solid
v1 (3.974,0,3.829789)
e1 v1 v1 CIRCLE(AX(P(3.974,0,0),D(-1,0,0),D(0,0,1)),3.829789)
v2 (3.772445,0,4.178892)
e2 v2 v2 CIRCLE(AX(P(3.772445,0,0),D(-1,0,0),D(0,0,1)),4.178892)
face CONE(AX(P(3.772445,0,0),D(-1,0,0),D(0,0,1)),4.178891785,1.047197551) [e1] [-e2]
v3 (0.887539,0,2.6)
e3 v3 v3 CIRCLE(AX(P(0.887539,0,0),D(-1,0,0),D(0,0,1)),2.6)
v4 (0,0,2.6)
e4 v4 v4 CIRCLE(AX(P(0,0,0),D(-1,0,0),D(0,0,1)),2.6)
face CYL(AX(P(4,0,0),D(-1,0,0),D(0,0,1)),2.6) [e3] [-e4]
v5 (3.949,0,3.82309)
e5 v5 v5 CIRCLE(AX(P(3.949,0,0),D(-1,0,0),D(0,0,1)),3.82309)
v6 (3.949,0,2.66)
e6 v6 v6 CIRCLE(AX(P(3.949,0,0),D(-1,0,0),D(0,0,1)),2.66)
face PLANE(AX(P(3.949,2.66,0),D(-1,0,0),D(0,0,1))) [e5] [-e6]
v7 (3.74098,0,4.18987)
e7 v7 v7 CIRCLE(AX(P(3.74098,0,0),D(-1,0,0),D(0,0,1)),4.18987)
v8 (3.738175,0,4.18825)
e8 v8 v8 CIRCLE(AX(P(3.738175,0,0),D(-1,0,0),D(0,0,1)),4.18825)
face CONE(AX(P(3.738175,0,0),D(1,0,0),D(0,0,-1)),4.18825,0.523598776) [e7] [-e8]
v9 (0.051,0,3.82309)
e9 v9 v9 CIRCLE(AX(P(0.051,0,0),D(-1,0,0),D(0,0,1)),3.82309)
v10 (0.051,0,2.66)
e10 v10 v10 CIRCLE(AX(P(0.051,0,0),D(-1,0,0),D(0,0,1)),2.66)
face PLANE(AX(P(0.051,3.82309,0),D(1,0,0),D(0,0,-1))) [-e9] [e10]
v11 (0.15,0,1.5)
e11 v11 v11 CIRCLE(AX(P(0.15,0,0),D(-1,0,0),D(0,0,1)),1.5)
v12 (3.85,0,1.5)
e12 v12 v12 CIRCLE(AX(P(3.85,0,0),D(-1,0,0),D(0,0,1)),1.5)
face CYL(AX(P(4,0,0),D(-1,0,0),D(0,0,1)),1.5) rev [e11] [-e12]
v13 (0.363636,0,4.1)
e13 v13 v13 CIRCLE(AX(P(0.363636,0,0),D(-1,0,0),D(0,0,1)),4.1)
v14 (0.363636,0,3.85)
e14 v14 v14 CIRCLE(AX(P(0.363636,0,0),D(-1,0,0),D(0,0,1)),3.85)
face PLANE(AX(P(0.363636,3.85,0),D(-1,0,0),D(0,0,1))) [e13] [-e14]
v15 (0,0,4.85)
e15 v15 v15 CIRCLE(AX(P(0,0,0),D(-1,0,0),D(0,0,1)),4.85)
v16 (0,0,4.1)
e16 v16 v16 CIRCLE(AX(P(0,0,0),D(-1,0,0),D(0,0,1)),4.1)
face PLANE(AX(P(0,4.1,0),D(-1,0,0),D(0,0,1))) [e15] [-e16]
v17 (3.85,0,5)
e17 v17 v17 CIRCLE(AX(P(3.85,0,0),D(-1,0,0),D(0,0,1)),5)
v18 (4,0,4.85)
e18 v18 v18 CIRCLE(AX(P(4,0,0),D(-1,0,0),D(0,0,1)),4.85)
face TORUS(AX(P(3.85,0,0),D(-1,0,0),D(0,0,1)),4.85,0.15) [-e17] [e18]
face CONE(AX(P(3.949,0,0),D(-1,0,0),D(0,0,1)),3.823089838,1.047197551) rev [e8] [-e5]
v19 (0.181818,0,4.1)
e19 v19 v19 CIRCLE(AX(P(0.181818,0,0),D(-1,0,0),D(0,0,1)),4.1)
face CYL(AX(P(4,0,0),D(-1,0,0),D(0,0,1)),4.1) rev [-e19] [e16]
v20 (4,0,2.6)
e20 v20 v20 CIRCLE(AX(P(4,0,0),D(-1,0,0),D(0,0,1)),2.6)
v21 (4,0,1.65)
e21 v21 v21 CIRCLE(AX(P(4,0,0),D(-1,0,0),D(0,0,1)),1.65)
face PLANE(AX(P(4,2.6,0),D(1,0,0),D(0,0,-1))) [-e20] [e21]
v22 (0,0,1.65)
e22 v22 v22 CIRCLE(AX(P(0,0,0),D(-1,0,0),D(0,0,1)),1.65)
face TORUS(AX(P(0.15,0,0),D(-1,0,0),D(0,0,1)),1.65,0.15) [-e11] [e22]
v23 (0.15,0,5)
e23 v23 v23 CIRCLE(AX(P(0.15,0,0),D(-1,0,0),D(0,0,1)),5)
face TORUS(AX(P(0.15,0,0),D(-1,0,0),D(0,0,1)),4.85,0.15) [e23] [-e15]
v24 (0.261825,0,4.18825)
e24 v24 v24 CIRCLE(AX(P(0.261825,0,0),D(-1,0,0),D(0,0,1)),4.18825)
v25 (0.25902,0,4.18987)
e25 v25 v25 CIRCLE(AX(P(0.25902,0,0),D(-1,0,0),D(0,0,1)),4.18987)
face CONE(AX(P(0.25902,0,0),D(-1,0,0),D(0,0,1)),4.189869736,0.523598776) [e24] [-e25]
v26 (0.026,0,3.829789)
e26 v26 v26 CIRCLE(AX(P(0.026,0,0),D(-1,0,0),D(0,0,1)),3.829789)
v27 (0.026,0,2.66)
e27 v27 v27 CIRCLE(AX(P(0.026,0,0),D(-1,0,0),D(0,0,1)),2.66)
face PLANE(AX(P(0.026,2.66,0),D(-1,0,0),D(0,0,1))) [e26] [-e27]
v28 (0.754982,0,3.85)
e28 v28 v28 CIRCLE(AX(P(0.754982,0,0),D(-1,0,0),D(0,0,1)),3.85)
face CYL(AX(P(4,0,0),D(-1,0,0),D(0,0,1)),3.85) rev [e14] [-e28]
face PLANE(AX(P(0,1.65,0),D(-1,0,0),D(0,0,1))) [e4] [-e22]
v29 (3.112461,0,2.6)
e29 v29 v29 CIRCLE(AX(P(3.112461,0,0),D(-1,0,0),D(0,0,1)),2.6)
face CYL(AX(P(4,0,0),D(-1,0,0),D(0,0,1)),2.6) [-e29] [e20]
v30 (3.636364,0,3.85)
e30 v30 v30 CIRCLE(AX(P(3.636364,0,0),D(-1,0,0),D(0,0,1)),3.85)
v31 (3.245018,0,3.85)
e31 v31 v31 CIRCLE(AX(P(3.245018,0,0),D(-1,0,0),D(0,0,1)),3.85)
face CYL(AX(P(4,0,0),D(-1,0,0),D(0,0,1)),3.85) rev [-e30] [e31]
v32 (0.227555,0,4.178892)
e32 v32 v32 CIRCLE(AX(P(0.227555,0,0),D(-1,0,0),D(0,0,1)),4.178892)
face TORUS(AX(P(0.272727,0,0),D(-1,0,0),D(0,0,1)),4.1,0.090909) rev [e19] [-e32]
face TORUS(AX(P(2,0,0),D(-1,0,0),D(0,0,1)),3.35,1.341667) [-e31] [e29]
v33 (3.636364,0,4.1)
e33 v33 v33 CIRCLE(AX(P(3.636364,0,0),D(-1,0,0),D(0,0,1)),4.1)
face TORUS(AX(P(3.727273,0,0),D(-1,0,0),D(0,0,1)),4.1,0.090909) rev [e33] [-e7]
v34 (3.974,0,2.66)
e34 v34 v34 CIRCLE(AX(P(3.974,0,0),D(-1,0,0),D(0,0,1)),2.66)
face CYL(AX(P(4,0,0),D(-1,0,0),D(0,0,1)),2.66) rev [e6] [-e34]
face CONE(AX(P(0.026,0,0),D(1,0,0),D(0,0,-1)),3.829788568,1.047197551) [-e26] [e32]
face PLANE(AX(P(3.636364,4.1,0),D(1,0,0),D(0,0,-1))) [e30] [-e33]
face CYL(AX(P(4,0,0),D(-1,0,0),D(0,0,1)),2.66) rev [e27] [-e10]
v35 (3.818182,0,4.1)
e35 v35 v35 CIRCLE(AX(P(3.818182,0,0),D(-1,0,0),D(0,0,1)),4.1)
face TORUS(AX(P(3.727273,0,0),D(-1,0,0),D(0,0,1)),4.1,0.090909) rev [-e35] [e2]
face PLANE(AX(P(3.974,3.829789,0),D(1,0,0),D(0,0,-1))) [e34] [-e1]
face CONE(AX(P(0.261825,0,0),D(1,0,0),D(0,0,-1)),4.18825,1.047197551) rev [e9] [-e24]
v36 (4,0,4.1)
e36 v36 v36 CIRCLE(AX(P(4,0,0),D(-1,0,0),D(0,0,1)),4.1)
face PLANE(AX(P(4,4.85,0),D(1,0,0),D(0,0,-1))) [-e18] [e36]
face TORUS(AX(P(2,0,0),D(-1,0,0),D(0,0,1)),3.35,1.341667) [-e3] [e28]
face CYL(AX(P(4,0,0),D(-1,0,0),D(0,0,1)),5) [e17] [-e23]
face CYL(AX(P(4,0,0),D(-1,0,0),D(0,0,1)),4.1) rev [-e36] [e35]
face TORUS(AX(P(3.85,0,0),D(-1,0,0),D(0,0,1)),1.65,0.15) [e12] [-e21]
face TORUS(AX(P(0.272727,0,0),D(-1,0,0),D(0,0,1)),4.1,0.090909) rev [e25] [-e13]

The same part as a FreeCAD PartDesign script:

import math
import FreeCAD as App
import Part
import Sketcher

V = App.Vector
Q = App.Units.Quantity

doc = App.newDocument("Part")
body = doc.addObject("PartDesign::Body", "Body")

# Sketch on XY plane
sketch1 = body.newObject("Sketcher::SketchObject", "Sketch")
sketch1.AttachmentSupport = (doc.getObject("XY_Plane"), [""])
sketch1.MapMode = "FlatFace"
sketch1.addGeometry([
    Part.LineSegment(V(4, 2.6, 0), V(4, 1.65, 0)),  # 0
    Part.ArcOfCircle(Part.Circle(V(3.85, 1.65, 0), V(0, 0, 1), 0.15), math.radians(-90), math.radians(0)),  # 1
    Part.LineSegment(V(3.85, 1.5, 0), V(0.15, 1.5, 0)),  # 2
    Part.ArcOfCircle(Part.Circle(V(0.15, 1.65, 0), V(0, 0, 1), 0.15), math.radians(-180), math.radians(-90)),  # 3
    Part.LineSegment(V(0, 1.65, 0), V(0, 2.6, 0)),  # 4
    Part.LineSegment(V(0, 2.6, 0), V(0.8875, 2.6, 0)),  # 5
    Part.ArcOfCircle(Part.Circle(V(2, 3.35, 0), V(0, 0, 1), 1.3417), math.radians(158), math.radians(214)),  # 6
    Part.LineSegment(V(0.755, 3.85, 0), V(0.3636, 3.85, 0)),  # 7
    Part.LineSegment(V(0.3636, 3.85, 0), V(0.3636, 4.1, 0)),  # 8
    Part.ArcOfCircle(Part.Circle(V(0.2727, 4.1, 0), V(0, 0, 1), 0.0909), math.radians(0), math.radians(99)),  # 9
    Part.LineSegment(V(0.259, 4.1899, 0), V(0.2618, 4.1883, 0)),  # 10
    Part.LineSegment(V(0.2618, 4.1883, 0), V(0.051, 3.8231, 0)),  # 11
    Part.LineSegment(V(0.051, 3.8231, 0), V(0.051, 2.66, 0)),  # 12
    Part.LineSegment(V(0.051, 2.66, 0), V(0.026, 2.66, 0)),  # 13
    Part.LineSegment(V(0.026, 2.66, 0), V(0.026, 3.8298, 0)),  # 14
    Part.LineSegment(V(0.026, 3.8298, 0), V(0.2276, 4.1789, 0)),  # 15
    Part.ArcOfCircle(Part.Circle(V(0.2727, 4.1, 0), V(0, 0, 1), 0.0909), math.radians(120), math.radians(180)),  # 16
    Part.LineSegment(V(0.1818, 4.1, 0), V(0, 4.1, 0)),  # 17
    Part.LineSegment(V(0, 4.1, 0), V(0, 4.85, 0)),  # 18
    Part.ArcOfCircle(Part.Circle(V(0.15, 4.85, 0), V(0, 0, 1), 0.15), math.radians(90), math.radians(180)),  # 19
    Part.LineSegment(V(0.15, 5, 0), V(3.85, 5, 0)),  # 20
    Part.ArcOfCircle(Part.Circle(V(3.85, 4.85, 0), V(0, 0, 1), 0.15), math.radians(0), math.radians(90)),  # 21
    Part.LineSegment(V(4, 4.85, 0), V(4, 4.1, 0)),  # 22
    Part.LineSegment(V(4, 4.1, 0), V(3.8182, 4.1, 0)),  # 23
    Part.ArcOfCircle(Part.Circle(V(3.7273, 4.1, 0), V(0, 0, 1), 0.0909), math.radians(0), math.radians(60)),  # 24
    Part.LineSegment(V(3.7724, 4.1789, 0), V(3.974, 3.8298, 0)),  # 25
    Part.LineSegment(V(3.974, 3.8298, 0), V(3.974, 2.66, 0)),  # 26
    Part.LineSegment(V(3.974, 2.66, 0), V(3.949, 2.66, 0)),  # 27
    Part.LineSegment(V(3.949, 2.66, 0), V(3.949, 3.8231, 0)),  # 28
    Part.LineSegment(V(3.949, 3.8231, 0), V(3.7382, 4.1883, 0)),  # 29
    Part.LineSegment(V(3.7382, 4.1883, 0), V(3.741, 4.1899, 0)),  # 30
    Part.ArcOfCircle(Part.Circle(V(3.7273, 4.1, 0), V(0, 0, 1), 0.0909), math.radians(81), math.radians(180)),  # 31
    Part.LineSegment(V(3.6364, 4.1, 0), V(3.6364, 3.85, 0)),  # 32
    Part.LineSegment(V(3.6364, 3.85, 0), V(3.245, 3.85, 0)),  # 33
    Part.ArcOfCircle(Part.Circle(V(2, 3.35, 0), V(0, 0, 1), 1.3417), math.radians(-34), math.radians(22)),  # 34
    Part.LineSegment(V(3.1125, 2.6, 0), V(4, 2.6, 0)),  # 35
], False)
sketch1.addConstraint([
    Sketcher.Constraint("Tangent", 0, 2, 1, 2),
    Sketcher.Constraint("Tangent", 1, 1, 2, 1),
    Sketcher.Constraint("Tangent", 2, 2, 3, 2),
    Sketcher.Constraint("Tangent", 3, 1, 4, 1),
    Sketcher.Constraint("Coincident", 4, 2, 5, 1),
    Sketcher.Constraint("Coincident", 5, 2, 6, 2),
    Sketcher.Constraint("Coincident", 6, 1, 7, 1),
    Sketcher.Constraint("Coincident", 7, 2, 8, 1),
    Sketcher.Constraint("Tangent", 8, 2, 9, 1),
    Sketcher.Constraint("Coincident", 9, 2, 10, 1),
    Sketcher.Constraint("Coincident", 10, 2, 11, 1),
    Sketcher.Constraint("Coincident", 11, 2, 12, 1),
    Sketcher.Constraint("Coincident", 12, 2, 13, 1),
    Sketcher.Constraint("Coincident", 13, 2, 14, 1),
    Sketcher.Constraint("Coincident", 14, 2, 15, 1),
    Sketcher.Constraint("Coincident", 15, 2, 16, 1),
    Sketcher.Constraint("Coincident", 16, 2, 17, 1),
    Sketcher.Constraint("Coincident", 17, 2, 18, 1),
    Sketcher.Constraint("Tangent", 18, 2, 19, 2),
    Sketcher.Constraint("Tangent", 19, 1, 20, 1),
    Sketcher.Constraint("Tangent", 20, 2, 21, 2),
    Sketcher.Constraint("Tangent", 21, 1, 22, 1),
    Sketcher.Constraint("Coincident", 22, 2, 23, 1),
    Sketcher.Constraint("Coincident", 23, 2, 24, 1),
    Sketcher.Constraint("Coincident", 24, 2, 25, 1),
    Sketcher.Constraint("Coincident", 25, 2, 26, 1),
    Sketcher.Constraint("Coincident", 26, 2, 27, 1),
    Sketcher.Constraint("Coincident", 27, 2, 28, 1),
    Sketcher.Constraint("Coincident", 28, 2, 29, 1),
    Sketcher.Constraint("Coincident", 29, 2, 30, 1),
    Sketcher.Constraint("Coincident", 30, 2, 31, 1),
    Sketcher.Constraint("Tangent", 31, 2, 32, 1),
    Sketcher.Constraint("Coincident", 32, 2, 33, 1),
    Sketcher.Constraint("Coincident", 33, 2, 34, 2),
    Sketcher.Constraint("Coincident", 34, 1, 35, 1),
    Sketcher.Constraint("Coincident", 35, 2, 0, 1),
    Sketcher.Constraint("Vertical", 0),
    Sketcher.Constraint("Horizontal", 2),
    Sketcher.Constraint("Vertical", 4),
    Sketcher.Constraint("Horizontal", 5),
    Sketcher.Constraint("Horizontal", 7),
    Sketcher.Constraint("Vertical", 8),
    Sketcher.Constraint("Vertical", 12),
    Sketcher.Constraint("Horizontal", 13),
    Sketcher.Constraint("Vertical", 14),
    Sketcher.Constraint("Horizontal", 17),
    Sketcher.Constraint("Vertical", 18),
    Sketcher.Constraint("Horizontal", 20),
    Sketcher.Constraint("Vertical", 22),
    Sketcher.Constraint("Horizontal", 23),
    Sketcher.Constraint("Vertical", 26),
    Sketcher.Constraint("Horizontal", 27),
    Sketcher.Constraint("Vertical", 28),
    Sketcher.Constraint("Vertical", 32),
    Sketcher.Constraint("Horizontal", 33),
    Sketcher.Constraint("Horizontal", 35),
    Sketcher.Constraint("Coincident", 16, 3, 9, 3),
    Sketcher.Constraint("Coincident", 31, 3, 24, 3),
    Sketcher.Constraint("Coincident", 34, 3, 6, 3),
    Sketcher.Constraint("Equal", 1, 3),
    Sketcher.Constraint("Equal", 9, 16),
    Sketcher.Constraint("Equal", 3, 19),
    Sketcher.Constraint("Equal", 19, 21),
    Sketcher.Constraint("Equal", 16, 24),
    Sketcher.Constraint("Equal", 24, 31),
    Sketcher.Constraint("Equal", 6, 34),
    Sketcher.Constraint("PointOnObject", 3, 1, -2),
    Sketcher.Constraint("PointOnObject", 17, 2, -2),
    Sketcher.Constraint("Perpendicular", 10, 11),
    Sketcher.Constraint("Parallel", 11, 15),
    Sketcher.Constraint("Parallel", 25, 29),
    Sketcher.Constraint("Perpendicular", 29, 30),
    Sketcher.Constraint("Horizontal", 16, 3, 24, 3),
    Sketcher.Constraint("Horizontal", 8, 2, 16, 2),
    Sketcher.Constraint("Horizontal", 17, 2, 22, 2),
    Sketcher.Constraint("Horizontal", 15, 2, 24, 2),
    Sketcher.Constraint("Horizontal", 14, 2, 25, 2),
    Sketcher.Constraint("Horizontal", 13, 2, 26, 2),
    Sketcher.Constraint("Horizontal", 11, 2, 28, 2),
    Sketcher.Constraint("Horizontal", 10, 2, 29, 2),
    Sketcher.Constraint("Horizontal", 9, 2, 30, 2),
    Sketcher.Constraint("Horizontal", 7, 2, 32, 2),
    Sketcher.Constraint("Horizontal", 5, 2, 34, 1),
    Sketcher.Constraint("Vertical", 1, 3, 21, 3),
    Sketcher.Constraint("Equal", 17, 23),
    Sketcher.Constraint("Equal", 13, 27),
    Sketcher.Constraint("Equal", 7, 33),
    Sketcher.Constraint("Angle", 10, Q("-30 deg")),
    Sketcher.Constraint("Radius", 1, Q("0.15 mm")),
    Sketcher.Constraint("DistanceX", 2, 2, 2, 1, Q("3.7 mm")),
    Sketcher.Constraint("DistanceY", -1, 1, 19, 1, Q("5 mm")),
    Sketcher.Constraint("DistanceY", 6, 1, 19, 3, Q("1 mm")),
    Sketcher.Constraint("DistanceY", 0, 2, 0, 1, Q("0.95 mm")),
    Sketcher.Constraint("DistanceY", 8, 1, 8, 2, Q("0.25 mm")),
    Sketcher.Constraint("DistanceY", -1, 1, 1, 1, Q("1.5 mm")),
    Sketcher.Constraint("DistanceY", 1, 3, 6, 3, Q("1.7 mm")),
    Sketcher.Constraint("DistanceX", 13, 2, 13, 1, Q("0.025 mm")),
    Sketcher.Constraint("DistanceY", -1, 1, 12, 2, Q("2.66 mm")),
    Sketcher.Constraint("Radius", 9, Q("0.090909 mm")),
    Sketcher.Constraint("DistanceX", -1, 1, 11, 2, Q("0.051 mm")),
    Sketcher.Constraint("Radius", 6, Q("1.341667 mm")),
    Sketcher.Constraint("DistanceX", 17, 2, 17, 1, Q("0.181818 mm")),
    Sketcher.Constraint("DistanceY", 12, 2, 12, 1, Q("1.16309 mm")),
    Sketcher.Constraint("DistanceY", 14, 1, 14, 2, Q("1.169789 mm")),
    Sketcher.Constraint("DistanceX", 10, 2, 9, 3, Q("0.010902 mm")),
])
revolution = body.newObject("PartDesign::Revolution", "Revolution")
revolution.Profile = sketch1
revolution.ReferenceAxis = (sketch1, ["H_Axis"])
revolution.Angle = 360

doc.recompute()
